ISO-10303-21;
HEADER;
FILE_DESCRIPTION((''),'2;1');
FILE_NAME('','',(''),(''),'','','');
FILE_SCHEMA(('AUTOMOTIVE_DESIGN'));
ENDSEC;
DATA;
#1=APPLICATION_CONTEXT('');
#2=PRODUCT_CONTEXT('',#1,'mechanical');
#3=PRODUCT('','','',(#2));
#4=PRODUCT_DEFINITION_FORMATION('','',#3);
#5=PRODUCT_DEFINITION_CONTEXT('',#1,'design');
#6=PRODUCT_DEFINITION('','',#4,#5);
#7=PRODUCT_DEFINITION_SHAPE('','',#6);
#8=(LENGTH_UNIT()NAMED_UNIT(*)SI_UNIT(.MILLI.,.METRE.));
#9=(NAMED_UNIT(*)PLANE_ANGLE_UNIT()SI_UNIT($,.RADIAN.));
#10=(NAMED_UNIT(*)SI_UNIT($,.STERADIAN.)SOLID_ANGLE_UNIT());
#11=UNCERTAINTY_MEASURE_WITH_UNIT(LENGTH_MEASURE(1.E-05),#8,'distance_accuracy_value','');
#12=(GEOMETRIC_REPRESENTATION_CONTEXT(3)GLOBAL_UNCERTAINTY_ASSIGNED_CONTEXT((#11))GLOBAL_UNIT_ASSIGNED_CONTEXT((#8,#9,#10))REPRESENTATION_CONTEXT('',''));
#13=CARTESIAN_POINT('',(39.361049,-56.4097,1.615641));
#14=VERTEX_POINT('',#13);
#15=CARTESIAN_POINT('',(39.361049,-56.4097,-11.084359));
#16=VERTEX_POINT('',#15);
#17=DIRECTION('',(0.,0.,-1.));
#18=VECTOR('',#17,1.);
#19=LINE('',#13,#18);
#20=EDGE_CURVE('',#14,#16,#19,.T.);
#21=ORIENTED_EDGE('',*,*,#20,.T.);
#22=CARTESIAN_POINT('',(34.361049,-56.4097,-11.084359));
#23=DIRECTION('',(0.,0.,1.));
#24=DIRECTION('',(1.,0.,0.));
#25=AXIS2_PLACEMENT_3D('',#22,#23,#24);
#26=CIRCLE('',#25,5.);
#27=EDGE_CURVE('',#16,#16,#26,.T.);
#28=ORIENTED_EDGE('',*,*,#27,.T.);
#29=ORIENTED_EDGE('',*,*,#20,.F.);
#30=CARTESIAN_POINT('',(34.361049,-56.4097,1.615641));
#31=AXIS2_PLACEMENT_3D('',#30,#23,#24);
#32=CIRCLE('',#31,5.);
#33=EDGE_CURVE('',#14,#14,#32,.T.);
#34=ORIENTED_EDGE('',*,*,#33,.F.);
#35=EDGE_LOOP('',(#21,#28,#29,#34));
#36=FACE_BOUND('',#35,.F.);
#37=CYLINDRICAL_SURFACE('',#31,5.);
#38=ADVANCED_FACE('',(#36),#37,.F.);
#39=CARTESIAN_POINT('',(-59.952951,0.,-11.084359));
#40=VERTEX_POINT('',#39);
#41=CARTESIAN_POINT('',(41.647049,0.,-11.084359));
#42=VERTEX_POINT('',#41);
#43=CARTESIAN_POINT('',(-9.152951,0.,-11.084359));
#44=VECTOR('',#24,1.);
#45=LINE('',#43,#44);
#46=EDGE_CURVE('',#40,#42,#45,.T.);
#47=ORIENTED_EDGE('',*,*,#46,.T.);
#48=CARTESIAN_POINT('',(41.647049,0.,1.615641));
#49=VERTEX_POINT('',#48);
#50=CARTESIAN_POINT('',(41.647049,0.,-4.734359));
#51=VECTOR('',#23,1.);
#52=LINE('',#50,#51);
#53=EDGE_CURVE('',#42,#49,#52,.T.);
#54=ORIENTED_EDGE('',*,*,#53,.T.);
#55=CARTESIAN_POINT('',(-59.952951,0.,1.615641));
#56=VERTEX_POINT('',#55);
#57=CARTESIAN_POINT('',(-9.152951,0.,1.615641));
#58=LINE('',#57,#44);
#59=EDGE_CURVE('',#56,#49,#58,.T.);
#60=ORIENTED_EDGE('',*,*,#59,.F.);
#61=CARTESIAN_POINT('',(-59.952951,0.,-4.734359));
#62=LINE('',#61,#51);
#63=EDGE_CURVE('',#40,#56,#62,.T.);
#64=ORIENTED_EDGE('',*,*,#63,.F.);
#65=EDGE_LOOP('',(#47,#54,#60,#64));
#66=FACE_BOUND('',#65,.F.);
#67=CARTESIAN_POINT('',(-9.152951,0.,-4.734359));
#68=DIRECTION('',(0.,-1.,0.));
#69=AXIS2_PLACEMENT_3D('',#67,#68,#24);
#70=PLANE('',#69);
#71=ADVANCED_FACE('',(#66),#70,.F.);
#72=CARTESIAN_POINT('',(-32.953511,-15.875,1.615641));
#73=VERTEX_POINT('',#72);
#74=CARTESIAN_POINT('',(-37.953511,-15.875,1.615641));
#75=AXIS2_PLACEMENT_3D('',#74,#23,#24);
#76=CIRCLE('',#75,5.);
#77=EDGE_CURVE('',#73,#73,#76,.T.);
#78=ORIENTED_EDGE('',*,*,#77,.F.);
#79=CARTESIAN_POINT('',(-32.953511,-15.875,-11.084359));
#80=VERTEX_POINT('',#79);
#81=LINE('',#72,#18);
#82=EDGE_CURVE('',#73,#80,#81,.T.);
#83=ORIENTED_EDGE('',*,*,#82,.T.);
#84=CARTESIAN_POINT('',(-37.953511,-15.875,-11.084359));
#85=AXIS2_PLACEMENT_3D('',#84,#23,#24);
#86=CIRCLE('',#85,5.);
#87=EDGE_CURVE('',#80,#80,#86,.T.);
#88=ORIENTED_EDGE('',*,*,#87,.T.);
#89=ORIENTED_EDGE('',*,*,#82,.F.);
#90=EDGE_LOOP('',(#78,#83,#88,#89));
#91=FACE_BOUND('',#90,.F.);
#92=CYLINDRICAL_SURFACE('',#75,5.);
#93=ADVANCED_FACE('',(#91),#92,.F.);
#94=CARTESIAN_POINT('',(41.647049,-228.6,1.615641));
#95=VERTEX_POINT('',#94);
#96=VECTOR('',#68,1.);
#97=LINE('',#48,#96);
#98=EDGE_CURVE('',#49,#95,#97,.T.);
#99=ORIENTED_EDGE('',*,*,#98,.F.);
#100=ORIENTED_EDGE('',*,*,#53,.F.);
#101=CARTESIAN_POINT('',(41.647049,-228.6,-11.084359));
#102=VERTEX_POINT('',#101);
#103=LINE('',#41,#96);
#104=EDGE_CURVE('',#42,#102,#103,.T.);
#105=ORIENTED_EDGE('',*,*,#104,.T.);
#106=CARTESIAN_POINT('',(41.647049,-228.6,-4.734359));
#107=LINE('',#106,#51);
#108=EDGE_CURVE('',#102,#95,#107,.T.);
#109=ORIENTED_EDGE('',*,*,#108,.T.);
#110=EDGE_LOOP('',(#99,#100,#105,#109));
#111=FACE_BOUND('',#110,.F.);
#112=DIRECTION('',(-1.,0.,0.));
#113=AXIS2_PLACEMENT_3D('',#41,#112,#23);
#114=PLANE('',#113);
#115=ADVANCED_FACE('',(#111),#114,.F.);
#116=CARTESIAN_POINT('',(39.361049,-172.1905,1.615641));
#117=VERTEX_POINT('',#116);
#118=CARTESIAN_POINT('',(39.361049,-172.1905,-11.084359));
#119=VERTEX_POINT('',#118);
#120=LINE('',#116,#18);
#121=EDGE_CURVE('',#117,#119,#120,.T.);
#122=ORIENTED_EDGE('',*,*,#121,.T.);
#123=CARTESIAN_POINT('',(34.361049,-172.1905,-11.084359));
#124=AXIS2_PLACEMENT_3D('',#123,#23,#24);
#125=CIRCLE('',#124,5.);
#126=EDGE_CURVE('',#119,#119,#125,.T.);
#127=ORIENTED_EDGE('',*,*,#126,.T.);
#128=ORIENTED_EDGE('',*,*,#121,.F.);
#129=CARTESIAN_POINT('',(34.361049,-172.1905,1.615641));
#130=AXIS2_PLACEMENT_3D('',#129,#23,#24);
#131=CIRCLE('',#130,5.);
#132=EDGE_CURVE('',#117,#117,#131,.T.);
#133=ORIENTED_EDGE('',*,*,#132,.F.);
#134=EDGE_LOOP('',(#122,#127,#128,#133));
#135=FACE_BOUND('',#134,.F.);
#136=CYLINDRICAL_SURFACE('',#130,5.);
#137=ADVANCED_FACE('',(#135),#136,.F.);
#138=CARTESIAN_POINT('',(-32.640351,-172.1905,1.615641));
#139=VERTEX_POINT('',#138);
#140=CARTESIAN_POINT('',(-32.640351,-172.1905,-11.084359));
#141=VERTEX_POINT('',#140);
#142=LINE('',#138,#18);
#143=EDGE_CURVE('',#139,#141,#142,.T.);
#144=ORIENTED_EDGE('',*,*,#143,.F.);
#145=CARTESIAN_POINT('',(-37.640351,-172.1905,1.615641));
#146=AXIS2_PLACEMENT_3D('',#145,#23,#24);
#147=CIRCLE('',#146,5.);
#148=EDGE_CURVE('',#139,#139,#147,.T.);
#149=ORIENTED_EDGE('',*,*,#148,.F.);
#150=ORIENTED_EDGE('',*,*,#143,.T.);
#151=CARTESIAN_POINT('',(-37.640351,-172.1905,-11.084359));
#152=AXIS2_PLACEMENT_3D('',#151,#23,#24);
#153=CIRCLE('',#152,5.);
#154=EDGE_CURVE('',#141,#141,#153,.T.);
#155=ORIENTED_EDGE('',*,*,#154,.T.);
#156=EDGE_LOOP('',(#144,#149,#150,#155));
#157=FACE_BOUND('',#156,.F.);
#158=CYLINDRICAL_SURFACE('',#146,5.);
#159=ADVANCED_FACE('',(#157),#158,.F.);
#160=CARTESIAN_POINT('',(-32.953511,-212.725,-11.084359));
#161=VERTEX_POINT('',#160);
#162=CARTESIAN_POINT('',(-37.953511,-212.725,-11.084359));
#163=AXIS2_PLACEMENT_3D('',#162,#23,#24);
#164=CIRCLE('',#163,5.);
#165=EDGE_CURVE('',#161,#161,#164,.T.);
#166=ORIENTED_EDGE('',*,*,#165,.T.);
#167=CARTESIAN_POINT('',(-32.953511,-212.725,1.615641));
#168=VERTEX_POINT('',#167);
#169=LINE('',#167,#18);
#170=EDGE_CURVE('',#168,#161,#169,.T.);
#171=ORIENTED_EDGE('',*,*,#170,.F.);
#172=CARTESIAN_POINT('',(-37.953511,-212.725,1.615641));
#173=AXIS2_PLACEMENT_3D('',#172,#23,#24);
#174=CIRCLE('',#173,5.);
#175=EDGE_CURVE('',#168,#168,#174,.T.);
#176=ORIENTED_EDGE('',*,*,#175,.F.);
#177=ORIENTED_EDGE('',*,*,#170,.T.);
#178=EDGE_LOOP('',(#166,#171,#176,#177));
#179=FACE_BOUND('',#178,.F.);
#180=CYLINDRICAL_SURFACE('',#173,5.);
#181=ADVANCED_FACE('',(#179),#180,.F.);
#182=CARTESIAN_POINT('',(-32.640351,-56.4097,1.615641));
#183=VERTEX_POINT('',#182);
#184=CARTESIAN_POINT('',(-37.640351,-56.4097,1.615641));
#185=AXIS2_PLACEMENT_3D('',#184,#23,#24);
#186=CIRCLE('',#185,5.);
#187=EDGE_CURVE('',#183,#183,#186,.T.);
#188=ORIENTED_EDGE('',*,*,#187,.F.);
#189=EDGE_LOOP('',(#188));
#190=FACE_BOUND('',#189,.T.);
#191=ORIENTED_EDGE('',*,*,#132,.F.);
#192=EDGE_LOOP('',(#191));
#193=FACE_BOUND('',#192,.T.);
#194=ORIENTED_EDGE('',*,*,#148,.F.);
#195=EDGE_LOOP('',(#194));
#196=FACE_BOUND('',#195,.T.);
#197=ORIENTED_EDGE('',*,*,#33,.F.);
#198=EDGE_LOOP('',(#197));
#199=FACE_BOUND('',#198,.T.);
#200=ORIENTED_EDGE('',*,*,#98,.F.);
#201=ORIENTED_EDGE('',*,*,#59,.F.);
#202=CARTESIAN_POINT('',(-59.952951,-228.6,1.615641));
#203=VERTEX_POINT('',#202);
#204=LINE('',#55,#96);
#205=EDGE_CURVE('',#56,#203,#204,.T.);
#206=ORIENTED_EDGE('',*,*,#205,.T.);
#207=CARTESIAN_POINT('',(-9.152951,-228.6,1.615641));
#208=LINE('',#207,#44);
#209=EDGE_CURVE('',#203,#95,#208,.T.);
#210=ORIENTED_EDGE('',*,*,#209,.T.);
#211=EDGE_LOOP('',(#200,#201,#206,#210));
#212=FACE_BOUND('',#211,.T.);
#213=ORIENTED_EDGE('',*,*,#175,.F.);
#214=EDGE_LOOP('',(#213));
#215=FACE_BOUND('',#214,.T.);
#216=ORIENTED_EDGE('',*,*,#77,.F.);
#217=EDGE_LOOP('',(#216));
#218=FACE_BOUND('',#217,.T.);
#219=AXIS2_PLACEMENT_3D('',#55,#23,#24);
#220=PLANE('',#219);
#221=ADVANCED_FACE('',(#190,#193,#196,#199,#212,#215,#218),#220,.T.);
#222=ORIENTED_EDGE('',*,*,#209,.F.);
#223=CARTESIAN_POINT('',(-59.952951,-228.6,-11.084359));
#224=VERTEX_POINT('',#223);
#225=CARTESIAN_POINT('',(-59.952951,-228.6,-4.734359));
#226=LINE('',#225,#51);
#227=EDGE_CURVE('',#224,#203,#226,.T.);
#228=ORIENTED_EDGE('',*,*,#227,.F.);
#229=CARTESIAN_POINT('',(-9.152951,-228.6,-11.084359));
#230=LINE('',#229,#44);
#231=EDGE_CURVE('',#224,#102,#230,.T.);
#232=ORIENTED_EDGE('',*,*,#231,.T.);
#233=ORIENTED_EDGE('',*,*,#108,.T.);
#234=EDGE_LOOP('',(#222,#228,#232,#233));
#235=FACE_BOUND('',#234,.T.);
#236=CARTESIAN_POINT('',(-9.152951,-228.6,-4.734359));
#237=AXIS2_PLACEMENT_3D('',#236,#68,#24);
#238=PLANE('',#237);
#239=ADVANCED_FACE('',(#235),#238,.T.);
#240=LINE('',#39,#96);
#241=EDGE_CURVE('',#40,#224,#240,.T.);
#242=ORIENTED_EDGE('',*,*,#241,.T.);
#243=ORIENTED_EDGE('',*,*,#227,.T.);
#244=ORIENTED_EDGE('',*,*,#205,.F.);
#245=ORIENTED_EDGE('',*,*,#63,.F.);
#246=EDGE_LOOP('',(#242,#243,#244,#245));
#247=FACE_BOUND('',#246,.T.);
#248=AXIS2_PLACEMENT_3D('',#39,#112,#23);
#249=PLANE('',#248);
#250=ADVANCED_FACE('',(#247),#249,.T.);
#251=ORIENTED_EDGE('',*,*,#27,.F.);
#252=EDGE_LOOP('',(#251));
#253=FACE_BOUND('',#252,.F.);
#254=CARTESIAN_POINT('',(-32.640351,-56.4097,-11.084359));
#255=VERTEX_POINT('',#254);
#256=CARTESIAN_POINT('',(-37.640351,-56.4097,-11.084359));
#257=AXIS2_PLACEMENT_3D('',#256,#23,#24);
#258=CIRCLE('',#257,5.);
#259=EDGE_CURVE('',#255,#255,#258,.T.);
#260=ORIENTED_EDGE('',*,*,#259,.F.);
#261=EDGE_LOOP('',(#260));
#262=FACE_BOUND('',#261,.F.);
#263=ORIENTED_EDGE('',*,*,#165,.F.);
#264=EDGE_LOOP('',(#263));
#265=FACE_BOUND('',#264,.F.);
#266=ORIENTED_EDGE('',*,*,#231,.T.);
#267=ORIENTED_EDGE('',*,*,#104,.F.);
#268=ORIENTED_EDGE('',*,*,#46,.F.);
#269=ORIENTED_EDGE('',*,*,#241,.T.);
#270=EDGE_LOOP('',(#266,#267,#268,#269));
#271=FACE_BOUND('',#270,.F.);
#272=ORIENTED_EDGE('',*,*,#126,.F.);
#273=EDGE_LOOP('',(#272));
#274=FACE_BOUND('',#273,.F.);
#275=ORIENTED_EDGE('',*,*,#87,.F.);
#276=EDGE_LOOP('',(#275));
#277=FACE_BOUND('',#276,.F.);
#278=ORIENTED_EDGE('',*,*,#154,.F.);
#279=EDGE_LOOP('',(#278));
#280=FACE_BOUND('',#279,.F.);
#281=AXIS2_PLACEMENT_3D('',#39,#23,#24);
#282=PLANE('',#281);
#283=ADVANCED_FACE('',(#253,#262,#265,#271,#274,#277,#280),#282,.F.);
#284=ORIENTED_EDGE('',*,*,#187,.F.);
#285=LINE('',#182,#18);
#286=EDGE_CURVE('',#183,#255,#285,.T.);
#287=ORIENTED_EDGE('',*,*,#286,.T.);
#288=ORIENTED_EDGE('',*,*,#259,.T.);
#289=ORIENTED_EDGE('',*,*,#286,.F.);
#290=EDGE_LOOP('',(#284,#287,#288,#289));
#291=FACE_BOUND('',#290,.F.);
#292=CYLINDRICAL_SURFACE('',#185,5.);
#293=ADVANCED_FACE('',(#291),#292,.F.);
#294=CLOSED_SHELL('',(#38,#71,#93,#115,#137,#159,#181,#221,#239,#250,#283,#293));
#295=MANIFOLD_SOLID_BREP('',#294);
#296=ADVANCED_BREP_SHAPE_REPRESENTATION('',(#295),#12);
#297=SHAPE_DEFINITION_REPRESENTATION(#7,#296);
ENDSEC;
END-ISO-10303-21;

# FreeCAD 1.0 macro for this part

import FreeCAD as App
import Part
import Sketcher

V = App.Vector
Q = App.Units.Quantity


def add_polygon(sketch, points):
    """Adds a closed chain of lines whose ends are joined by coincident constraints."""
    first, n = sketch.GeometryCount, len(points)
    for a, b in zip(points, points[1:] + points[:1]):
        sketch.addGeometry(Part.LineSegment(App.Vector(*a, 0), App.Vector(*b, 0)), False)
    for i in range(n):
        sketch.addConstraint(Sketcher.Constraint("Coincident", first + i, 2, first + (i + 1) % n, 1))

doc = App.newDocument("Part")
body = doc.addObject("PartDesign::Body", "Body")

# Sketch on XZ plane
sketch1 = body.newObject("Sketcher::SketchObject", "Sketch")
sketch1.AttachmentSupport = (doc.getObject("XZ_Plane"), [""])
sketch1.MapMode = "FlatFace"
add_polygon(sketch1, [(-60, 2), (-60, -11), (42, -11), (42, 2)])  # lines 0-3
sketch1.addConstraint([
    Sketcher.Constraint("Vertical", 0),
    Sketcher.Constraint("Horizontal", 1),
    Sketcher.Constraint("Vertical", 2),
    Sketcher.Constraint("Horizontal", 3),
    Sketcher.Constraint("DistanceX", 1, 1, 1, 2, Q("4 in")),
    Sketcher.Constraint("DistanceY", 0, 2, 0, 1, Q("0.5 in")),
    Sketcher.Constraint("DistanceX", 0, 2, -1, 1, Q("59.952951 mm")),
    Sketcher.Constraint("DistanceY", 0, 2, -1, 1, Q("11.084359 mm")),
])
pad1 = body.newObject("PartDesign::Pad", "Pad")
pad1.Profile = sketch1
pad1.Length = Q("9 in")

# Sketch on XY plane
sketch2 = body.newObject("Sketcher::SketchObject", "Sketch001")
sketch2.AttachmentSupport = (doc.getObject("XY_Plane"), [""])
sketch2.MapMode = "FlatFace"
sketch2.AttachmentOffset = App.Placement(V(0, 0, 1.615641), App.Rotation())
sketch2.addGeometry([
    Part.Circle(V(34, -56, 0), V(0, 0, 1), 5),  # 0
    Part.Circle(V(34, -172, 0), V(0, 0, 1), 5),  # 1
    Part.Circle(V(-38, -56, 0), V(0, 0, 1), 5),  # 2
    Part.Circle(V(-38, -172, 0), V(0, 0, 1), 5),  # 3
    Part.Circle(V(-38, -213, 0), V(0, 0, 1), 5),  # 4
    Part.Circle(V(-38, -16, 0), V(0, 0, 1), 5),  # 5
], False)
sketch2.addConstraint([
    Sketcher.Constraint("Equal", 0, 1),
    Sketcher.Constraint("Equal", 1, 2),
    Sketcher.Constraint("Equal", 2, 3),
    Sketcher.Constraint("Equal", 3, 4),
    Sketcher.Constraint("Equal", 4, 5),
    Sketcher.Constraint("Horizontal", 0, 3, 2, 3),
    Sketcher.Constraint("Horizontal", 1, 3, 3, 3),
    Sketcher.Constraint("Vertical", 0, 3, 1, 3),
    Sketcher.Constraint("Vertical", 2, 3, 3, 3),
    Sketcher.Constraint("Vertical", 4, 3, 5, 3),
    Sketcher.Constraint("Diameter", 0, Q("10 mm")),
    Sketcher.Constraint("DistanceY", 4, 3, 5, 3, Q("7.75 in")),
    Sketcher.Constraint("DistanceY", 4, 3, -1, 1, Q("8.375 in")),
    Sketcher.Constraint("DistanceY", 0, 3, -1, 1, Q("56.4097 mm")),
    Sketcher.Constraint("DistanceY", 1, 3, -1, 1, Q("172.1905 mm")),
    Sketcher.Constraint("DistanceX", 2, 3, 0, 3, Q("72.0014 mm")),
    Sketcher.Constraint("DistanceX", -1, 1, 0, 3, Q("34.361049 mm")),
    Sketcher.Constraint("DistanceX", 4, 3, -1, 1, Q("37.953511 mm")),
])
pocket1 = body.newObject("PartDesign::Pocket", "Pocket")
pocket1.Profile = sketch2
pocket1.Type = "ThroughAll"

doc.recompute()
